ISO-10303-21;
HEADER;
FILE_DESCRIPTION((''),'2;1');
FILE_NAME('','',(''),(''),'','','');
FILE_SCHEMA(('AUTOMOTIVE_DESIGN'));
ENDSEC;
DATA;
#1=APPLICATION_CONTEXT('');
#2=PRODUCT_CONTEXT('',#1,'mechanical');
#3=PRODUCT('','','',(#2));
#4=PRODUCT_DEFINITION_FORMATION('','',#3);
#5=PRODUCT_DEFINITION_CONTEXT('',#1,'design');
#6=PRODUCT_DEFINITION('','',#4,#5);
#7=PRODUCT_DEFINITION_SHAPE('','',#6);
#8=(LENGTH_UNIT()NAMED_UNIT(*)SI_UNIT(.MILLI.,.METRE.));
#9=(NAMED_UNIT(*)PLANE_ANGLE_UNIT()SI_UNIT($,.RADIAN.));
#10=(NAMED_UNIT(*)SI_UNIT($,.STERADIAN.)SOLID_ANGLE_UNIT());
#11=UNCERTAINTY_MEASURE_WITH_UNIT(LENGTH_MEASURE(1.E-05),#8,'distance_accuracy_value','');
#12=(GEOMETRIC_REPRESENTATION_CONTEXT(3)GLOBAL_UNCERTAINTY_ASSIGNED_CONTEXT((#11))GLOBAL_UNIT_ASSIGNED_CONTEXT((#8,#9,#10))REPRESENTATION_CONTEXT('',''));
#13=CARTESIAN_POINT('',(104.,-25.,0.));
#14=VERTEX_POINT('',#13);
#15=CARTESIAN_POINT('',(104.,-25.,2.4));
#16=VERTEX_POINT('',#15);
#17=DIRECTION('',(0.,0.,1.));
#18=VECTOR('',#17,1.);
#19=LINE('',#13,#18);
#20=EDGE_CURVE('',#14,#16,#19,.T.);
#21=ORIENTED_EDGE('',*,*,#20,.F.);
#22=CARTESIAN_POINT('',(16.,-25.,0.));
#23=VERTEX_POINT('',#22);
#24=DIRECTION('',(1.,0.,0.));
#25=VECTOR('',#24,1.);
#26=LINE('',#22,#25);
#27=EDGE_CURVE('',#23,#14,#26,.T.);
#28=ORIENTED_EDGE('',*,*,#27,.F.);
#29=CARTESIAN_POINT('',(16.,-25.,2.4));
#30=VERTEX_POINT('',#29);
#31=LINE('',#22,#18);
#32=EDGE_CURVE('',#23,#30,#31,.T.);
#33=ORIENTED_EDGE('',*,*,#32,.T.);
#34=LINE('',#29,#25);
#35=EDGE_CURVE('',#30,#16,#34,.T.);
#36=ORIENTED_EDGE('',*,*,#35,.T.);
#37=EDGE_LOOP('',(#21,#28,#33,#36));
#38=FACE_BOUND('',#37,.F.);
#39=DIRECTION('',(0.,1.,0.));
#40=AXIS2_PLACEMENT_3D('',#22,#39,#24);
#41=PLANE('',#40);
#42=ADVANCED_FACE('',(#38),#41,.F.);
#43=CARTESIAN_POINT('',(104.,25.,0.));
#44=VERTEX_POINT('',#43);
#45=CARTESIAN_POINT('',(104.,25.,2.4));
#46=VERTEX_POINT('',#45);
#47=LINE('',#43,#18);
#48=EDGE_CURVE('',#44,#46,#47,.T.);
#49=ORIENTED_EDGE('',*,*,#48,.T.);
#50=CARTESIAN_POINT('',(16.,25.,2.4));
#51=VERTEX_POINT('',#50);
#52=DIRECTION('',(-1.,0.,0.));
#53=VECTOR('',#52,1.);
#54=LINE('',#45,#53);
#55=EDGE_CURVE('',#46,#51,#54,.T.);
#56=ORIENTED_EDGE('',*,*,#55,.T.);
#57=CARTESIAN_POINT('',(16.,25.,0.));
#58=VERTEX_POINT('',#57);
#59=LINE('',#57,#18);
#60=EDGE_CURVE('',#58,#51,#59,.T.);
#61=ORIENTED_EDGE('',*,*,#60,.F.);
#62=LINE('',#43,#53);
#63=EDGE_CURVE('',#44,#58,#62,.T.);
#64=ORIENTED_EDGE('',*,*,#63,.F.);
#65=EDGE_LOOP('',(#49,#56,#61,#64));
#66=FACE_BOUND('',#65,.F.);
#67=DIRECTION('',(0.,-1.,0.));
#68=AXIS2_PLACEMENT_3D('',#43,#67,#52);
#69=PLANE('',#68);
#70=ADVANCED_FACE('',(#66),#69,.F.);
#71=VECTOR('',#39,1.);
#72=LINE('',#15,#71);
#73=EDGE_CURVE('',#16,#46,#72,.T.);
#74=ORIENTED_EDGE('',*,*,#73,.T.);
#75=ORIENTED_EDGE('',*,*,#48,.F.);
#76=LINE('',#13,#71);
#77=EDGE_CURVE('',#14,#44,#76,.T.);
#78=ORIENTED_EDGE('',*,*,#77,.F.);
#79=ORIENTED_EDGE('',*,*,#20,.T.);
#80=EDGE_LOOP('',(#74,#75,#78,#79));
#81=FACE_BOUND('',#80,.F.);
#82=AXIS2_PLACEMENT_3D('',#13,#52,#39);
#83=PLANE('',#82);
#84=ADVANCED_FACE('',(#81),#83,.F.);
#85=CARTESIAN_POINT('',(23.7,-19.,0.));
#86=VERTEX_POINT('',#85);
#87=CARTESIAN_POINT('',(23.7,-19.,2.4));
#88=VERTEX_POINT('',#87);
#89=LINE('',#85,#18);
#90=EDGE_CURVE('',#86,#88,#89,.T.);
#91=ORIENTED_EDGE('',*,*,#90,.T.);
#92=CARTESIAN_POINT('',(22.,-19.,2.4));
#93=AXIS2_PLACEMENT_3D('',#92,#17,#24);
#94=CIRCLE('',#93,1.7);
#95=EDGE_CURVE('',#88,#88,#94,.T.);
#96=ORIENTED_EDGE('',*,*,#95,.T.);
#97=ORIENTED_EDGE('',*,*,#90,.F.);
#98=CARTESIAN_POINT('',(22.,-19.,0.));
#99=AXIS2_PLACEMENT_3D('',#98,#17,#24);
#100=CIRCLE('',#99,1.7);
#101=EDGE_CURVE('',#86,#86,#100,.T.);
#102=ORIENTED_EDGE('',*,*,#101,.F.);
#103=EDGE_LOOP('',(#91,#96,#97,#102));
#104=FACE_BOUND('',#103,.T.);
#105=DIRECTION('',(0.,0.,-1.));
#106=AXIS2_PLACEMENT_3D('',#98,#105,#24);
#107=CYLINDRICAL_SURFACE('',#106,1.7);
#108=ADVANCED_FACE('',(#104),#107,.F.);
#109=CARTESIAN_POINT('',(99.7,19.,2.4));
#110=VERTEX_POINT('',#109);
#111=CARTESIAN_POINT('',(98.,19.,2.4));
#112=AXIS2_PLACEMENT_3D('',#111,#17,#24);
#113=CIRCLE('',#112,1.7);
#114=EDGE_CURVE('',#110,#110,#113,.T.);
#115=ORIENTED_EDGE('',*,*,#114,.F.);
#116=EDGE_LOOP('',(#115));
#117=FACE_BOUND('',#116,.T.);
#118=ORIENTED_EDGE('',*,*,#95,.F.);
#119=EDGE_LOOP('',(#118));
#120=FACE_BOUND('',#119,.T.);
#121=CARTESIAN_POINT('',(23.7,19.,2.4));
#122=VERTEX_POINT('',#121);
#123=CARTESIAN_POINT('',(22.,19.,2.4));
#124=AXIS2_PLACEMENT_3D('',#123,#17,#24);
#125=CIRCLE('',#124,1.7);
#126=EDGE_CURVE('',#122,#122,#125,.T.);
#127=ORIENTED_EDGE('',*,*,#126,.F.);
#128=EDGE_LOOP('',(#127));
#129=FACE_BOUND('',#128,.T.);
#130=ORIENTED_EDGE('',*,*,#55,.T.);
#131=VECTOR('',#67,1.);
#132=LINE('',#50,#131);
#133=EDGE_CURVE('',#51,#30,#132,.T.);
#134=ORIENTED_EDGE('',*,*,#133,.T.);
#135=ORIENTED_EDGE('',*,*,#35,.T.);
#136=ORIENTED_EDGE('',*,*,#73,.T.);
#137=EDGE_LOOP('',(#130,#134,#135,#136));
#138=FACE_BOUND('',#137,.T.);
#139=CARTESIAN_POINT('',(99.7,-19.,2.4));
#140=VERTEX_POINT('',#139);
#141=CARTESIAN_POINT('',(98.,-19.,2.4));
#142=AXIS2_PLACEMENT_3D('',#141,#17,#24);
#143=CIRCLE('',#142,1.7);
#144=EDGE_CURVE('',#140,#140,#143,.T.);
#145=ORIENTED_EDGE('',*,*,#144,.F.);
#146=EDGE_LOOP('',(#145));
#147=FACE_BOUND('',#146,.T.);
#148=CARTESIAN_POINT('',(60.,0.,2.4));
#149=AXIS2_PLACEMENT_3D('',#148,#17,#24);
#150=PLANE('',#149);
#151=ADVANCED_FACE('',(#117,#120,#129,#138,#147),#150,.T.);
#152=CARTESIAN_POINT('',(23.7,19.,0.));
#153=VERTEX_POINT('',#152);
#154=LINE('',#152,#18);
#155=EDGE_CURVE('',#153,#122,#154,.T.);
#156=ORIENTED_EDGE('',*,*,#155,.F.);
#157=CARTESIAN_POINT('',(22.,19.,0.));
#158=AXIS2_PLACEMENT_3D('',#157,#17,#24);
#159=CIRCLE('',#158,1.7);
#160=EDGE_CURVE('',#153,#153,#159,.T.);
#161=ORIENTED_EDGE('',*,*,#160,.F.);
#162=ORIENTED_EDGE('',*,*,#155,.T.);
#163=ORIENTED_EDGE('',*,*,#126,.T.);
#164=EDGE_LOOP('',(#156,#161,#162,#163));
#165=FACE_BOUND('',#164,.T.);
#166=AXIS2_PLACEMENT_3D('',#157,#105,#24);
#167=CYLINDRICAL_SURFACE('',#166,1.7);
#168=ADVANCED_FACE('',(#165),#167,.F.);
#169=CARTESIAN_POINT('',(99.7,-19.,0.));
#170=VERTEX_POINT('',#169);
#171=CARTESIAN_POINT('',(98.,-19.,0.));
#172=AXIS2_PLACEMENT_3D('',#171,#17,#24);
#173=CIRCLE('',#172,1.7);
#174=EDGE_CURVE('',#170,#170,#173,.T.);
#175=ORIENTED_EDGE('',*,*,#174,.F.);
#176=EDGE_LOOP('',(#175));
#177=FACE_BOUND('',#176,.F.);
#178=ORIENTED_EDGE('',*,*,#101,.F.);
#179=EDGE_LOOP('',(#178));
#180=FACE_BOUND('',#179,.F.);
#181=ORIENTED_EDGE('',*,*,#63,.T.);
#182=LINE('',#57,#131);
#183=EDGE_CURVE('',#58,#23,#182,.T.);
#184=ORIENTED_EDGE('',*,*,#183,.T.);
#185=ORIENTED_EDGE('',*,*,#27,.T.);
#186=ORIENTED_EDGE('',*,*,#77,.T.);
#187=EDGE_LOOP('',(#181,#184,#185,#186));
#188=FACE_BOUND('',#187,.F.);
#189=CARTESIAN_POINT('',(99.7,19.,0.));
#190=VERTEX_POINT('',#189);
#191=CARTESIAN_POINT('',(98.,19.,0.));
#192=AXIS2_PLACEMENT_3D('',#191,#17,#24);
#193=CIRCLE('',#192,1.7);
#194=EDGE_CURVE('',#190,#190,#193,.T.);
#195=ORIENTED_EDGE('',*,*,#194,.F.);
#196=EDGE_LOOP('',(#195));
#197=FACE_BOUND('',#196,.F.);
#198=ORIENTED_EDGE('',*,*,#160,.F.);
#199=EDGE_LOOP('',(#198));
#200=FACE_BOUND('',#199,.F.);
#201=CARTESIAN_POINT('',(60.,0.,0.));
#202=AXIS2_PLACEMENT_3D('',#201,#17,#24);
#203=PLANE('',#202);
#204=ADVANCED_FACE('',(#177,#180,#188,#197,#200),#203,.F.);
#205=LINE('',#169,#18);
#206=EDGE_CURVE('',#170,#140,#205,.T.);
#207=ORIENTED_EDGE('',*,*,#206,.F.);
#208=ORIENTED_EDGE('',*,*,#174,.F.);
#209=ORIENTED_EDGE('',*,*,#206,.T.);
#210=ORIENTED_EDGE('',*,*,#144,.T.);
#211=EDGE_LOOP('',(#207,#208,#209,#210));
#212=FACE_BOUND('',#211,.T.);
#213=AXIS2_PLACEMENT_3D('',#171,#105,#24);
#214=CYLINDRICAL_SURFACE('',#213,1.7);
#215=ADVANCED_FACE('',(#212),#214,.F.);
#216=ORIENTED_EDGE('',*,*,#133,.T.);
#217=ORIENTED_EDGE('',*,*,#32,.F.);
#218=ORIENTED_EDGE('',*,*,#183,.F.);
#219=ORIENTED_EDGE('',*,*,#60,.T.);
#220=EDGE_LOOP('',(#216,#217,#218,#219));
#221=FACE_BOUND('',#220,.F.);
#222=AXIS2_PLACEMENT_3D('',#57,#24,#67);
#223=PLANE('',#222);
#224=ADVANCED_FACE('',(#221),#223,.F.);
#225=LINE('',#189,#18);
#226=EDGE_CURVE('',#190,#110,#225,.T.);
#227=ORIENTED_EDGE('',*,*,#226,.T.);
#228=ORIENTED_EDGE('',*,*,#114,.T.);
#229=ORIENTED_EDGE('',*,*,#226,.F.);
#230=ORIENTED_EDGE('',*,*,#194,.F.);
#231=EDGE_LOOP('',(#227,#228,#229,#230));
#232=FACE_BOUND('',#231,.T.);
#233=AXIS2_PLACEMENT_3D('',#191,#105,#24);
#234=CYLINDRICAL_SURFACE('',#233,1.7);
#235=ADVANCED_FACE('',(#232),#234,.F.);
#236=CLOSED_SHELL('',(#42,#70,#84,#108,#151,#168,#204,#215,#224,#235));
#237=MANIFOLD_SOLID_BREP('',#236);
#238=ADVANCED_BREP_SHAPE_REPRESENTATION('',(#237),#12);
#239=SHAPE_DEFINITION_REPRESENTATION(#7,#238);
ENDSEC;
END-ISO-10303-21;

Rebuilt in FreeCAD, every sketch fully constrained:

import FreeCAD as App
import Part
import Sketcher


def add_polygon(sketch, points):
    """Adds a closed chain of lines whose ends are joined by coincident constraints."""
    first, n = sketch.GeometryCount, len(points)
    for a, b in zip(points, points[1:] + points[:1]):
        sketch.addGeometry(Part.LineSegment(App.Vector(*a, 0), App.Vector(*b, 0)), False)
    for i in range(n):
        sketch.addConstraint(Sketcher.Constraint("Coincident", first + i, 2, first + (i + 1) % n, 1))

doc = App.newDocument("Part")
body = doc.addObject("PartDesign::Body", "Body")

# Sketch on XY plane
sketch1 = body.newObject("Sketcher::SketchObject", "Sketch")
sketch1.AttachmentSupport = (doc.getObject("XY_Plane"), [""])
sketch1.MapMode = "FlatFace"
add_polygon(sketch1, [(16, 25), (16, -25), (104, -25), (104, 25)])  # lines 0-3
sketch1.addGeometry(Part.Circle(App.Vector(22, -19, 0), App.Vector(0, 0, 1), 1.7), False)  # 4
sketch1.addGeometry(Part.Circle(App.Vector(98, -19, 0), App.Vector(0, 0, 1), 1.7), False)  # 5
sketch1.addGeometry(Part.Circle(App.Vector(22, 19, 0), App.Vector(0, 0, 1), 1.7), False)  # 6
sketch1.addGeometry(Part.Circle(App.Vector(98, 19, 0), App.Vector(0, 0, 1), 1.7), False)  # 7
sketch1.addConstraint([
    Sketcher.Constraint("Vertical", 0),
    Sketcher.Constraint("Horizontal", 1),
    Sketcher.Constraint("Vertical", 2),
    Sketcher.Constraint("Horizontal", 3),
    Sketcher.Constraint("Equal", 4, 5),
    Sketcher.Constraint("Equal", 5, 6),
    Sketcher.Constraint("Equal", 6, 7),
    Sketcher.Constraint("Symmetric", 4, 3, 6, 3, -1),
    Sketcher.Constraint("Symmetric", 5, 3, 7, 3, -1),
    Sketcher.Constraint("Horizontal", 4, 3, 5, 3),
    Sketcher.Constraint("Diameter", 4, 3.4),
    Sketcher.Constraint("DistanceX", 1, 1, 1, 2, 88.0),
    Sketcher.Constraint("DistanceY", 0, 2, 0, 1, 50.0),
    Sketcher.Constraint("DistanceX", -1, 1, 4, 3, 22.0),
    Sketcher.Constraint("DistanceY", 4, 3, -1, 1, 19.0),
    Sketcher.Constraint("DistanceX", -1, 1, 5, 3, 98.0),
    Sketcher.Constraint("DistanceX", -1, 1, 0, 2, 16.0),
    Sketcher.Constraint("DistanceY", 0, 2, -1, 1, 25.0),
])
pad1 = body.newObject("PartDesign::Pad", "Pad")
pad1.Profile = sketch1
pad1.Length = 2.4

doc.recompute()
